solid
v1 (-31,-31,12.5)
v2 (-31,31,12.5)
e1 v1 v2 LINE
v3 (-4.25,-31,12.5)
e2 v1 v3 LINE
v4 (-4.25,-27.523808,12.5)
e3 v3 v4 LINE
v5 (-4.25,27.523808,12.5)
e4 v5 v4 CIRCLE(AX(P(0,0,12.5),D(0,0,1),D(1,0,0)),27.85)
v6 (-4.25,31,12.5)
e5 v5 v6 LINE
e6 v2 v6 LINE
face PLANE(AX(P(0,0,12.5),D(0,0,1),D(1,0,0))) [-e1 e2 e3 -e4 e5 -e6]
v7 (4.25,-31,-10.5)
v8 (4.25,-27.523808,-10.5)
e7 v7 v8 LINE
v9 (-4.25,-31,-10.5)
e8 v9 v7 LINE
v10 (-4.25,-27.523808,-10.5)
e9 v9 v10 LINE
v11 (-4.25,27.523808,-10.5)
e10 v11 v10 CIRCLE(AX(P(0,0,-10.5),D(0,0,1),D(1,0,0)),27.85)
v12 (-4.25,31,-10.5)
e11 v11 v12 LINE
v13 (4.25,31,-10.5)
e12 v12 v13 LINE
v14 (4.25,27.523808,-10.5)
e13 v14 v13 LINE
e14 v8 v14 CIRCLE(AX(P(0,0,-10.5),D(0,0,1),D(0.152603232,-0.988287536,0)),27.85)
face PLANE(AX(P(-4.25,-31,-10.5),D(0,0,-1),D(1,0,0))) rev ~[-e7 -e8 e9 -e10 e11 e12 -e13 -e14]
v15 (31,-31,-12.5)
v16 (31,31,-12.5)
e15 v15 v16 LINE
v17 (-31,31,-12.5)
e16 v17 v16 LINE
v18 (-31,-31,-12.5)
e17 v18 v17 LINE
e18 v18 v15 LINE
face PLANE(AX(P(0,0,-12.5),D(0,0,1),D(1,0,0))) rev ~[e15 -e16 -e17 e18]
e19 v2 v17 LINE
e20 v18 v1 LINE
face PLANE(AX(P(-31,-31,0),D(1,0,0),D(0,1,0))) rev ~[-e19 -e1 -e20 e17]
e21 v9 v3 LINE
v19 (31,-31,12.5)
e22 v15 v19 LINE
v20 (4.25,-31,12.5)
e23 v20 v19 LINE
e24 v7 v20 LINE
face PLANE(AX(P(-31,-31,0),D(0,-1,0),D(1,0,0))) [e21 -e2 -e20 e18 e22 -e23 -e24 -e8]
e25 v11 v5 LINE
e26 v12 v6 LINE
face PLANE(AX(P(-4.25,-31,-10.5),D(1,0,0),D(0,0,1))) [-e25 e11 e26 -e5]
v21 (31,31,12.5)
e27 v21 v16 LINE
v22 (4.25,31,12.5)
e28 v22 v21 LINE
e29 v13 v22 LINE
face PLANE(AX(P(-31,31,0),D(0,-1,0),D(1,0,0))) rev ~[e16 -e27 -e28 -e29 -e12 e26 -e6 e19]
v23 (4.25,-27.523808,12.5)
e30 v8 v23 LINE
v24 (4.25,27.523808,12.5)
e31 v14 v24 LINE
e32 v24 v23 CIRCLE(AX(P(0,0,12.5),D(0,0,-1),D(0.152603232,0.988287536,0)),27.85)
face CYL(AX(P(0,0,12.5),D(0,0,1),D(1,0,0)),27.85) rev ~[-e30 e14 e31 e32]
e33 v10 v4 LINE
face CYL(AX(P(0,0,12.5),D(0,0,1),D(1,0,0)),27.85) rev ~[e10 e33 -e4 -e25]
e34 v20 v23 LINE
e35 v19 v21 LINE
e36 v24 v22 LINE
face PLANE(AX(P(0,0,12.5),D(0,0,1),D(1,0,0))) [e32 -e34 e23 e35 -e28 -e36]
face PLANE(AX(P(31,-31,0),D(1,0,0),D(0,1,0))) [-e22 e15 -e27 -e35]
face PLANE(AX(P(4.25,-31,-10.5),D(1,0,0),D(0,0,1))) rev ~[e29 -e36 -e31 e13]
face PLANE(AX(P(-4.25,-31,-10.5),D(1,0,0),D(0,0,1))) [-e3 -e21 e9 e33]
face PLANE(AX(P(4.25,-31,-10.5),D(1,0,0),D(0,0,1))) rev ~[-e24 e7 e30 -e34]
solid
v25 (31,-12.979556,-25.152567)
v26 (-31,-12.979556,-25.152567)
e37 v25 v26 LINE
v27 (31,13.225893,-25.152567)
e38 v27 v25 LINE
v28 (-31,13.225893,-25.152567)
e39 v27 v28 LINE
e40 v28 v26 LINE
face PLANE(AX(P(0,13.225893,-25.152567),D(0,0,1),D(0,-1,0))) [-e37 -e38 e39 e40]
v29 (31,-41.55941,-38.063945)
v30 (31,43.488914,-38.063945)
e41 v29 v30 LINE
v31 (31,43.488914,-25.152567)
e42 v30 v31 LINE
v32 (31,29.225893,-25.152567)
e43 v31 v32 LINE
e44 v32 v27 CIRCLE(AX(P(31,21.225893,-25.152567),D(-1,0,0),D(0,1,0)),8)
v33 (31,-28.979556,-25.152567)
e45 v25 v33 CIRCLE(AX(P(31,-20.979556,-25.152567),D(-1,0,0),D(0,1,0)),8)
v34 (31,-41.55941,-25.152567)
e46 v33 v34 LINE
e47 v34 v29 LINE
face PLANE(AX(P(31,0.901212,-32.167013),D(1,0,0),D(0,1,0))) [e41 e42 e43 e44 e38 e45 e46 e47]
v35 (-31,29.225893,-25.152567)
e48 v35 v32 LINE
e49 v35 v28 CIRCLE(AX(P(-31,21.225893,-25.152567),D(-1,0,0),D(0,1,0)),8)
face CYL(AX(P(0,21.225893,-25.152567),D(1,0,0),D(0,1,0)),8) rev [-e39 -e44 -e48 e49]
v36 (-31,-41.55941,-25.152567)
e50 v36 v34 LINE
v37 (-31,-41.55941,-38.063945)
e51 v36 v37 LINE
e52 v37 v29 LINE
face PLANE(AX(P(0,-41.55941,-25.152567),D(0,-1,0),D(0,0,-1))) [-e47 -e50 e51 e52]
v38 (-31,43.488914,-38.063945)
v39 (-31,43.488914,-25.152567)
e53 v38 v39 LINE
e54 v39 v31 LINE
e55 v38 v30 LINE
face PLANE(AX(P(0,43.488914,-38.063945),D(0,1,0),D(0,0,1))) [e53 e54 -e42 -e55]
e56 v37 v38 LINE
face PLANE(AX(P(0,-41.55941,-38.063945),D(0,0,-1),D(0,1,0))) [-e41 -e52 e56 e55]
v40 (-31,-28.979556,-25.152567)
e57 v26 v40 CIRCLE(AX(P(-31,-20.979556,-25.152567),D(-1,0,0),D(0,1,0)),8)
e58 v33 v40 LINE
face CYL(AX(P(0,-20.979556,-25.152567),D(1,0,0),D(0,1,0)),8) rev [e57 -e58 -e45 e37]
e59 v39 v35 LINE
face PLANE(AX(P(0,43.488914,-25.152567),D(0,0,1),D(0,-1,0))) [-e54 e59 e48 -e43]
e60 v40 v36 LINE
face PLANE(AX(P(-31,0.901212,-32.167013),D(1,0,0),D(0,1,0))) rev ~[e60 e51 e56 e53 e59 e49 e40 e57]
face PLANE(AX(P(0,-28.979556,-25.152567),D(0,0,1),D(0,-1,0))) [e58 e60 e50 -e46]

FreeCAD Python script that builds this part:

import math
import FreeCAD as App
import Part
import Sketcher

V = App.Vector


def add_polygon(sketch, points):
    """Adds a closed chain of lines whose ends are joined by coincident constraints."""
    first, n = sketch.GeometryCount, len(points)
    for a, b in zip(points, points[1:] + points[:1]):
        sketch.addGeometry(Part.LineSegment(App.Vector(*a, 0), App.Vector(*b, 0)), False)
    for i in range(n):
        sketch.addConstraint(Sketcher.Constraint("Coincident", first + i, 2, first + (i + 1) % n, 1))

doc = App.newDocument("Part")
body = doc.addObject("PartDesign::Body", "Body")

# Sketch on XY plane
sketch1 = body.newObject("Sketcher::SketchObject", "Sketch")
sketch1.AttachmentSupport = (doc.getObject("XY_Plane"), [""])
sketch1.MapMode = "FlatFace"
add_polygon(sketch1, [(-31, 31), (-31, -31), (31, -31), (31, 31)])  # lines 0-3
sketch1.addConstraint([
    Sketcher.Constraint("Vertical", 0),
    Sketcher.Constraint("Horizontal", 1),
    Sketcher.Constraint("Vertical", 2),
    Sketcher.Constraint("Horizontal", 3),
    Sketcher.Constraint("Symmetric", 0, 2, 2, 2, -1, 1),
    Sketcher.Constraint("Equal", 3, 0),
    Sketcher.Constraint("DistanceX", 1, 1, 1, 2, 62.0),
])
pad1 = body.newObject("PartDesign::Pad", "Pad")
pad1.Profile = sketch1
pad1.Length = 25
pad1.Midplane = True

# Sketch on XY plane
sketch2 = body.newObject("Sketcher::SketchObject", "Sketch001")
sketch2.AttachmentSupport = (doc.getObject("XY_Plane"), [""])
sketch2.MapMode = "FlatFace"
sketch2.AttachmentOffset = App.Placement(V(0, 0, 12.5), App.Rotation())
sketch2.addGeometry(Part.Circle(V(0, 0, 0), V(0, 0, 1), 28), False)
sketch2.addConstraint([
    Sketcher.Constraint("Coincident", 0, 3, -1, 1),
    Sketcher.Constraint("Diameter", 0, 55.7),
])
pocket1 = body.newObject("PartDesign::Pocket", "Pocket")
pocket1.Profile = sketch2
pocket1.Length = 23

# Sketch on XZ plane
sketch3 = body.newObject("Sketcher::SketchObject", "Sketch002")
sketch3.AttachmentSupport = (doc.getObject("XZ_Plane"), [""])
sketch3.MapMode = "FlatFace"
sketch3.AttachmentOffset = App.Placement(V(0, 0, 31), App.Rotation())
add_polygon(sketch3, [(-4, 12), (-4, -10), (4, -10), (4, 12)])  # lines 0-3
sketch3.addConstraint([
    Sketcher.Constraint("Vertical", 0),
    Sketcher.Constraint("Horizontal", 1),
    Sketcher.Constraint("Vertical", 2),
    Sketcher.Constraint("Horizontal", 3),
    Sketcher.Constraint("DistanceY", 0, 2, 0, 1, 23.0),
    Sketcher.Constraint("DistanceX", 1, 1, 1, 2, 8.5),
    Sketcher.Constraint("DistanceY", 0, 2, -1, 1, 10.5),
    Sketcher.Constraint("DistanceX", 0, 2, -1, 1, 4.25),
])
pocket2 = body.newObject("PartDesign::Pocket", "Pocket001")
pocket2.Profile = sketch3
pocket2.Length = 72.3
body2 = doc.addObject("PartDesign::Body", "Body001")

# Sketch on YZ plane
sketch4 = body2.newObject("Sketcher::SketchObject", "Sketch003")
sketch4.AttachmentSupport = (doc.getObject("YZ_Plane001"), [""])
sketch4.MapMode = "FlatFace"
sketch4.addGeometry([
    Part.LineSegment(V(-29, -25, 0), V(-42, -25, 0)),  # 0
    Part.LineSegment(V(-42, -25, 0), V(-42, -38, 0)),  # 1
    Part.LineSegment(V(-42, -38, 0), V(43, -38, 0)),  # 2
    Part.LineSegment(V(43, -38, 0), V(43, -25, 0)),  # 3
    Part.LineSegment(V(43, -25, 0), V(29, -25, 0)),  # 4
    Part.ArcOfCircle(Part.Circle(V(21, -25, 0), V(0, 0, 1), 8), math.radians(180), math.radians(360)),  # 5
    Part.LineSegment(V(13, -25, 0), V(-13, -25, 0)),  # 6
    Part.ArcOfCircle(Part.Circle(V(-21, -25, 0), V(0, 0, 1), 8), math.radians(180), math.radians(360)),  # 7
], False)
sketch4.addConstraint([
    Sketcher.Constraint("Coincident", 0, 2, 1, 1),
    Sketcher.Constraint("Coincident", 1, 2, 2, 1),
    Sketcher.Constraint("Coincident", 2, 2, 3, 1),
    Sketcher.Constraint("Coincident", 3, 2, 4, 1),
    Sketcher.Constraint("Coincident", 4, 2, 5, 2),
    Sketcher.Constraint("Coincident", 5, 1, 6, 1),
    Sketcher.Constraint("Coincident", 6, 2, 7, 2),
    Sketcher.Constraint("Coincident", 7, 1, 0, 1),
    Sketcher.Constraint("Horizontal", 0),
    Sketcher.Constraint("Vertical", 1),
    Sketcher.Constraint("Horizontal", 2),
    Sketcher.Constraint("Vertical", 3),
    Sketcher.Constraint("Horizontal", 4),
    Sketcher.Constraint("Horizontal", 6),
    Sketcher.Constraint("Equal", 5, 7),
    Sketcher.Constraint("Horizontal", 5, 3, 7, 3),
    Sketcher.Constraint("Horizontal", 7, 3, 0, 2),
    Sketcher.Constraint("Horizontal", 0, 2, 3, 2),
    Sketcher.Constraint("Horizontal", 4, 2, 5, 1),
    Sketcher.Constraint("Radius", 5, 8.0),
    Sketcher.Constraint("DistanceX", 4, 2, 4, 1, 14.263021),
    Sketcher.Constraint("DistanceX", 6, 2, 6, 1, 26.205449),
    Sketcher.Constraint("DistanceX", 0, 2, 0, 1, 12.579854),
    Sketcher.Constraint("DistanceY", 1, 2, 1, 1, 12.911378),
    Sketcher.Constraint("DistanceX", 0, 2, -1, 1, 41.55941),
    Sketcher.Constraint("DistanceY", 5, 3, -1, 1, 25.152567),
])
pad2 = body2.newObject("PartDesign::Pad", "Pad001")
pad2.Profile = sketch4
pad2.Type = "TwoLengths"
pad2.Length = 31
pad2.Length2 = 31

doc.recompute()
